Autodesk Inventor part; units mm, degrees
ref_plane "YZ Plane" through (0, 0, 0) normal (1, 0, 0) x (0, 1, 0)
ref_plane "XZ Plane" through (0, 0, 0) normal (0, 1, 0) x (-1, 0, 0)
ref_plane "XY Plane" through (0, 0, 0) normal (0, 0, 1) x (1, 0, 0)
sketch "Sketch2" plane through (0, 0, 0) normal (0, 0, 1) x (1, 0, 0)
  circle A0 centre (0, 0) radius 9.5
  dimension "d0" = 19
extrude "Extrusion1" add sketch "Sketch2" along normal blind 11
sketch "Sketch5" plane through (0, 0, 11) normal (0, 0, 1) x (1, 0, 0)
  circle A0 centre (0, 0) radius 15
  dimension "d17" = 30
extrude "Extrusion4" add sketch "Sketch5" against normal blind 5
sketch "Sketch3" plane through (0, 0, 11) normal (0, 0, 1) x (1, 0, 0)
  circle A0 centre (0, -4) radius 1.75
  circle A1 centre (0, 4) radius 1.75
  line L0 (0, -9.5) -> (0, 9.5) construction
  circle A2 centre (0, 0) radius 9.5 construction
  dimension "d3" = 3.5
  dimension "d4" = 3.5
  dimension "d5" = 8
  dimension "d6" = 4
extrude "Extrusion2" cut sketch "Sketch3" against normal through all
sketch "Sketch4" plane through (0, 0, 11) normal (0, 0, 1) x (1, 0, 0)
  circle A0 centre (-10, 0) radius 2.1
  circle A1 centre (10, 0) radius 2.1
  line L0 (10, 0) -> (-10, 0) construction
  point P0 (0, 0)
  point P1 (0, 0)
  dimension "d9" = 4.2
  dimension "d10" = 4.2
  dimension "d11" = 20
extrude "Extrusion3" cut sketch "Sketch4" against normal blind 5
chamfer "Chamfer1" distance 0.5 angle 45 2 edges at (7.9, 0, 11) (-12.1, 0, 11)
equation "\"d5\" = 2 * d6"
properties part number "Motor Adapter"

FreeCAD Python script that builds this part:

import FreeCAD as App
import Part
import Sketcher
from FreeCAD import Vector


def edges_at(feature, points):
    """Names of the edges that pass closest to the given points."""
    edges = feature.Shape.Edges
    near = lambda p: min(range(len(edges)), key=lambda i: edges[i].distToShape(Part.Vertex(*p))[0])
    return sorted({f"Edge{near(p) + 1}" for p in points})

doc = App.newDocument("Part")
body = doc.addObject("PartDesign::Body", "Body")

sketch1 = body.newObject("Sketcher::SketchObject", "Sketch")
sketch1.AttachmentSupport = (doc.getObject("XY_Plane"), [""])
sketch1.MapMode = "FlatFace"
sketch1.addGeometry(Part.Circle(Vector(0, 0, 0), Vector(0, 0, 1), 10), False)
sketch1.addConstraint([
    Sketcher.Constraint("Coincident", 0, 3, -1, 1),
    Sketcher.Constraint("Diameter", 0, 19.0),
])
pad1 = body.newObject("PartDesign::Pad", "Pad")
pad1.Profile = sketch1
pad1.Length = 11

sketch2 = body.newObject("Sketcher::SketchObject", "Sketch001")
sketch2.AttachmentSupport = (doc.getObject("XY_Plane"), [""])
sketch2.MapMode = "FlatFace"
sketch2.AttachmentOffset = App.Placement(Vector(0, 0, 11), App.Rotation())
sketch2.addGeometry(Part.Circle(Vector(0, 0, 0), Vector(0, 0, 1), 15), False)
sketch2.addConstraint([
    Sketcher.Constraint("Coincident", 0, 3, -1, 1),
    Sketcher.Constraint("Diameter", 0, 30.0),
])
pad2 = body.newObject("PartDesign::Pad", "Pad001")
pad2.Profile = sketch2
pad2.Length = 5
pad2.Reversed = True

sketch3 = body.newObject("Sketcher::SketchObject", "Sketch002")
sketch3.AttachmentSupport = (doc.getObject("XY_Plane"), [""])
sketch3.MapMode = "FlatFace"
sketch3.AttachmentOffset = App.Placement(Vector(0, 0, 11), App.Rotation())
sketch3.addGeometry([
    Part.Circle(Vector(0, -4, 0), Vector(0, 0, 1), 1.8),
    Part.Circle(Vector(0, 4, 0), Vector(0, 0, 1), 1.8),
], False)
sketch3.addConstraint([
    Sketcher.Constraint("Equal", 0, 1),
    Sketcher.Constraint("Symmetric", 0, 3, 1, 3, -1, 1),
    Sketcher.Constraint("PointOnObject", 0, 3, -2),
    Sketcher.Constraint("Diameter", 0, 3.5),
    Sketcher.Constraint("DistanceY", 0, 3, -1, 1, 4.0),
])
pocket1 = body.newObject("PartDesign::Pocket", "Pocket")
pocket1.Profile = sketch3
pocket1.Type = "ThroughAll"

sketch4 = body.newObject("Sketcher::SketchObject", "Sketch003")
sketch4.AttachmentSupport = (doc.getObject("XY_Plane"), [""])
sketch4.MapMode = "FlatFace"
sketch4.AttachmentOffset = App.Placement(Vector(0, 0, 11), App.Rotation())
sketch4.addGeometry([
    Part.Circle(Vector(-10, 0, 0), Vector(0, 0, 1), 2.1),
    Part.Circle(Vector(10, 0, 0), Vector(0, 0, 1), 2.1),
], False)
sketch4.addConstraint([
    Sketcher.Constraint("Equal", 0, 1),
    Sketcher.Constraint("Symmetric", 0, 3, 1, 3, -1, 1),
    Sketcher.Constraint("PointOnObject", 0, 3, -1),
    Sketcher.Constraint("Diameter", 0, 4.2),
    Sketcher.Constraint("DistanceX", 0, 3, 1, 3, 20.0),
])
pocket2 = body.newObject("PartDesign::Pocket", "Pocket001")
pocket2.Profile = sketch4
pocket2.Length = 5
doc.recompute()

chamfer = body.newObject("PartDesign::Chamfer", "Chamfer")
chamfer.Base = (pocket2, edges_at(pocket2, [(7.9, 0, 11), (-12.1, 0, 11)]))
chamfer.Size = 0.5

doc.recompute()
